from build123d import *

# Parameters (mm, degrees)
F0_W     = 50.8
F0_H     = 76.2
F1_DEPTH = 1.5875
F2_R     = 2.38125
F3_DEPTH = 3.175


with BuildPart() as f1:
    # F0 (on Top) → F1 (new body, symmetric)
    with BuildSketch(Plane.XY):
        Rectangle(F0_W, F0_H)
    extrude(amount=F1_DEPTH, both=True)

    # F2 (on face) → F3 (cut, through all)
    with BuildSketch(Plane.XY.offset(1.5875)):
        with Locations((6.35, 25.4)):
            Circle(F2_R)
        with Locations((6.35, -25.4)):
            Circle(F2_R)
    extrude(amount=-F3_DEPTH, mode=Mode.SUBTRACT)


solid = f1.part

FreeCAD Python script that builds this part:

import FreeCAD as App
import Part
import Sketcher
from FreeCAD import Vector
Q = App.Units.Quantity


def add_polygon(sketch, points):
    """Adds a closed chain of lines whose ends are joined by coincident constraints."""
    first, n = sketch.GeometryCount, len(points)
    for a, b in zip(points, points[1:] + points[:1]):
        sketch.addGeometry(Part.LineSegment(App.Vector(*a, 0), App.Vector(*b, 0)), False)
    for i in range(n):
        sketch.addConstraint(Sketcher.Constraint("Coincident", first + i, 2, first + (i + 1) % n, 1))

doc = App.newDocument("Part")
params = doc.addObject("Spreadsheet::Sheet", "Params")
for row, (alias, value) in enumerate([
    ("sketch1_width", "2 in"),
    ("sketch1_height", "3 in"),
    ("pad1_length", "0.125 in"),
    ("sketch2_diameter", "0.1875 in"),
], start=1):
    params.set(f"A{row}", alias)
    params.set(f"B{row}", "=" + value)
    params.setAlias(f"B{row}", alias)

body = doc.addObject("PartDesign::Body", "Body")

# Sketch on XY plane
sketch1 = body.newObject("Sketcher::SketchObject", "Sketch")
sketch1.AttachmentSupport = (doc.getObject("XY_Plane"), [""])
sketch1.MapMode = "FlatFace"
add_polygon(sketch1, [(-25, 38), (-25, -38), (25, -38), (25, 38)])  # lines 0-3
sketch1.addConstraint([
    Sketcher.Constraint("Vertical", 0),
    Sketcher.Constraint("Horizontal", 1),
    Sketcher.Constraint("Vertical", 2),
    Sketcher.Constraint("Horizontal", 3),
    Sketcher.Constraint("Symmetric", 0, 2, 2, 2, -1, 1),
    Sketcher.Constraint("DistanceX", 1, 1, 1, 2, Q("2 in")),
    Sketcher.Constraint("DistanceY", 0, 2, 0, 1, Q("3 in")),
])
sketch1.setExpression("Constraints[9]", "Params.sketch1_width")
sketch1.setExpression("Constraints[10]", "Params.sketch1_height")
pad1 = body.newObject("PartDesign::Pad", "Pad")
pad1.Profile = sketch1
pad1.setExpression("Length", "Params.pad1_length")
pad1.Midplane = True

# Sketch on XY plane
sketch2 = body.newObject("Sketcher::SketchObject", "Sketch001")
sketch2.AttachmentSupport = (doc.getObject("XY_Plane"), [""])
sketch2.MapMode = "FlatFace"
sketch2.AttachmentOffset = App.Placement(Vector(0, 0, 0.0625 * 25.4), App.Rotation())
sketch2.addGeometry([
    Part.Circle(Vector(6.3, 25.4, 0), Vector(0, 0, 1), 2.4),
    Part.Circle(Vector(6.3, -25.4, 0), Vector(0, 0, 1), 2.4),
], False)
sketch2.addConstraint([
    Sketcher.Constraint("Equal", 0, 1),
    Sketcher.Constraint("Symmetric", 0, 3, 1, 3, -1),
    Sketcher.Constraint("Diameter", 0, Q("0.1875 in")),
    Sketcher.Constraint("DistanceY", -1, 1, 0, 3, Q("1 in")),
    Sketcher.Constraint("DistanceX", -1, 1, 0, 3, Q("0.25 in")),
])
sketch2.setExpression("Constraints[2]", "Params.sketch2_diameter")
pocket1 = body.newObject("PartDesign::Pocket", "Pocket")
pocket1.Profile = sketch2
pocket1.Type = "ThroughAll"

doc.recompute()
